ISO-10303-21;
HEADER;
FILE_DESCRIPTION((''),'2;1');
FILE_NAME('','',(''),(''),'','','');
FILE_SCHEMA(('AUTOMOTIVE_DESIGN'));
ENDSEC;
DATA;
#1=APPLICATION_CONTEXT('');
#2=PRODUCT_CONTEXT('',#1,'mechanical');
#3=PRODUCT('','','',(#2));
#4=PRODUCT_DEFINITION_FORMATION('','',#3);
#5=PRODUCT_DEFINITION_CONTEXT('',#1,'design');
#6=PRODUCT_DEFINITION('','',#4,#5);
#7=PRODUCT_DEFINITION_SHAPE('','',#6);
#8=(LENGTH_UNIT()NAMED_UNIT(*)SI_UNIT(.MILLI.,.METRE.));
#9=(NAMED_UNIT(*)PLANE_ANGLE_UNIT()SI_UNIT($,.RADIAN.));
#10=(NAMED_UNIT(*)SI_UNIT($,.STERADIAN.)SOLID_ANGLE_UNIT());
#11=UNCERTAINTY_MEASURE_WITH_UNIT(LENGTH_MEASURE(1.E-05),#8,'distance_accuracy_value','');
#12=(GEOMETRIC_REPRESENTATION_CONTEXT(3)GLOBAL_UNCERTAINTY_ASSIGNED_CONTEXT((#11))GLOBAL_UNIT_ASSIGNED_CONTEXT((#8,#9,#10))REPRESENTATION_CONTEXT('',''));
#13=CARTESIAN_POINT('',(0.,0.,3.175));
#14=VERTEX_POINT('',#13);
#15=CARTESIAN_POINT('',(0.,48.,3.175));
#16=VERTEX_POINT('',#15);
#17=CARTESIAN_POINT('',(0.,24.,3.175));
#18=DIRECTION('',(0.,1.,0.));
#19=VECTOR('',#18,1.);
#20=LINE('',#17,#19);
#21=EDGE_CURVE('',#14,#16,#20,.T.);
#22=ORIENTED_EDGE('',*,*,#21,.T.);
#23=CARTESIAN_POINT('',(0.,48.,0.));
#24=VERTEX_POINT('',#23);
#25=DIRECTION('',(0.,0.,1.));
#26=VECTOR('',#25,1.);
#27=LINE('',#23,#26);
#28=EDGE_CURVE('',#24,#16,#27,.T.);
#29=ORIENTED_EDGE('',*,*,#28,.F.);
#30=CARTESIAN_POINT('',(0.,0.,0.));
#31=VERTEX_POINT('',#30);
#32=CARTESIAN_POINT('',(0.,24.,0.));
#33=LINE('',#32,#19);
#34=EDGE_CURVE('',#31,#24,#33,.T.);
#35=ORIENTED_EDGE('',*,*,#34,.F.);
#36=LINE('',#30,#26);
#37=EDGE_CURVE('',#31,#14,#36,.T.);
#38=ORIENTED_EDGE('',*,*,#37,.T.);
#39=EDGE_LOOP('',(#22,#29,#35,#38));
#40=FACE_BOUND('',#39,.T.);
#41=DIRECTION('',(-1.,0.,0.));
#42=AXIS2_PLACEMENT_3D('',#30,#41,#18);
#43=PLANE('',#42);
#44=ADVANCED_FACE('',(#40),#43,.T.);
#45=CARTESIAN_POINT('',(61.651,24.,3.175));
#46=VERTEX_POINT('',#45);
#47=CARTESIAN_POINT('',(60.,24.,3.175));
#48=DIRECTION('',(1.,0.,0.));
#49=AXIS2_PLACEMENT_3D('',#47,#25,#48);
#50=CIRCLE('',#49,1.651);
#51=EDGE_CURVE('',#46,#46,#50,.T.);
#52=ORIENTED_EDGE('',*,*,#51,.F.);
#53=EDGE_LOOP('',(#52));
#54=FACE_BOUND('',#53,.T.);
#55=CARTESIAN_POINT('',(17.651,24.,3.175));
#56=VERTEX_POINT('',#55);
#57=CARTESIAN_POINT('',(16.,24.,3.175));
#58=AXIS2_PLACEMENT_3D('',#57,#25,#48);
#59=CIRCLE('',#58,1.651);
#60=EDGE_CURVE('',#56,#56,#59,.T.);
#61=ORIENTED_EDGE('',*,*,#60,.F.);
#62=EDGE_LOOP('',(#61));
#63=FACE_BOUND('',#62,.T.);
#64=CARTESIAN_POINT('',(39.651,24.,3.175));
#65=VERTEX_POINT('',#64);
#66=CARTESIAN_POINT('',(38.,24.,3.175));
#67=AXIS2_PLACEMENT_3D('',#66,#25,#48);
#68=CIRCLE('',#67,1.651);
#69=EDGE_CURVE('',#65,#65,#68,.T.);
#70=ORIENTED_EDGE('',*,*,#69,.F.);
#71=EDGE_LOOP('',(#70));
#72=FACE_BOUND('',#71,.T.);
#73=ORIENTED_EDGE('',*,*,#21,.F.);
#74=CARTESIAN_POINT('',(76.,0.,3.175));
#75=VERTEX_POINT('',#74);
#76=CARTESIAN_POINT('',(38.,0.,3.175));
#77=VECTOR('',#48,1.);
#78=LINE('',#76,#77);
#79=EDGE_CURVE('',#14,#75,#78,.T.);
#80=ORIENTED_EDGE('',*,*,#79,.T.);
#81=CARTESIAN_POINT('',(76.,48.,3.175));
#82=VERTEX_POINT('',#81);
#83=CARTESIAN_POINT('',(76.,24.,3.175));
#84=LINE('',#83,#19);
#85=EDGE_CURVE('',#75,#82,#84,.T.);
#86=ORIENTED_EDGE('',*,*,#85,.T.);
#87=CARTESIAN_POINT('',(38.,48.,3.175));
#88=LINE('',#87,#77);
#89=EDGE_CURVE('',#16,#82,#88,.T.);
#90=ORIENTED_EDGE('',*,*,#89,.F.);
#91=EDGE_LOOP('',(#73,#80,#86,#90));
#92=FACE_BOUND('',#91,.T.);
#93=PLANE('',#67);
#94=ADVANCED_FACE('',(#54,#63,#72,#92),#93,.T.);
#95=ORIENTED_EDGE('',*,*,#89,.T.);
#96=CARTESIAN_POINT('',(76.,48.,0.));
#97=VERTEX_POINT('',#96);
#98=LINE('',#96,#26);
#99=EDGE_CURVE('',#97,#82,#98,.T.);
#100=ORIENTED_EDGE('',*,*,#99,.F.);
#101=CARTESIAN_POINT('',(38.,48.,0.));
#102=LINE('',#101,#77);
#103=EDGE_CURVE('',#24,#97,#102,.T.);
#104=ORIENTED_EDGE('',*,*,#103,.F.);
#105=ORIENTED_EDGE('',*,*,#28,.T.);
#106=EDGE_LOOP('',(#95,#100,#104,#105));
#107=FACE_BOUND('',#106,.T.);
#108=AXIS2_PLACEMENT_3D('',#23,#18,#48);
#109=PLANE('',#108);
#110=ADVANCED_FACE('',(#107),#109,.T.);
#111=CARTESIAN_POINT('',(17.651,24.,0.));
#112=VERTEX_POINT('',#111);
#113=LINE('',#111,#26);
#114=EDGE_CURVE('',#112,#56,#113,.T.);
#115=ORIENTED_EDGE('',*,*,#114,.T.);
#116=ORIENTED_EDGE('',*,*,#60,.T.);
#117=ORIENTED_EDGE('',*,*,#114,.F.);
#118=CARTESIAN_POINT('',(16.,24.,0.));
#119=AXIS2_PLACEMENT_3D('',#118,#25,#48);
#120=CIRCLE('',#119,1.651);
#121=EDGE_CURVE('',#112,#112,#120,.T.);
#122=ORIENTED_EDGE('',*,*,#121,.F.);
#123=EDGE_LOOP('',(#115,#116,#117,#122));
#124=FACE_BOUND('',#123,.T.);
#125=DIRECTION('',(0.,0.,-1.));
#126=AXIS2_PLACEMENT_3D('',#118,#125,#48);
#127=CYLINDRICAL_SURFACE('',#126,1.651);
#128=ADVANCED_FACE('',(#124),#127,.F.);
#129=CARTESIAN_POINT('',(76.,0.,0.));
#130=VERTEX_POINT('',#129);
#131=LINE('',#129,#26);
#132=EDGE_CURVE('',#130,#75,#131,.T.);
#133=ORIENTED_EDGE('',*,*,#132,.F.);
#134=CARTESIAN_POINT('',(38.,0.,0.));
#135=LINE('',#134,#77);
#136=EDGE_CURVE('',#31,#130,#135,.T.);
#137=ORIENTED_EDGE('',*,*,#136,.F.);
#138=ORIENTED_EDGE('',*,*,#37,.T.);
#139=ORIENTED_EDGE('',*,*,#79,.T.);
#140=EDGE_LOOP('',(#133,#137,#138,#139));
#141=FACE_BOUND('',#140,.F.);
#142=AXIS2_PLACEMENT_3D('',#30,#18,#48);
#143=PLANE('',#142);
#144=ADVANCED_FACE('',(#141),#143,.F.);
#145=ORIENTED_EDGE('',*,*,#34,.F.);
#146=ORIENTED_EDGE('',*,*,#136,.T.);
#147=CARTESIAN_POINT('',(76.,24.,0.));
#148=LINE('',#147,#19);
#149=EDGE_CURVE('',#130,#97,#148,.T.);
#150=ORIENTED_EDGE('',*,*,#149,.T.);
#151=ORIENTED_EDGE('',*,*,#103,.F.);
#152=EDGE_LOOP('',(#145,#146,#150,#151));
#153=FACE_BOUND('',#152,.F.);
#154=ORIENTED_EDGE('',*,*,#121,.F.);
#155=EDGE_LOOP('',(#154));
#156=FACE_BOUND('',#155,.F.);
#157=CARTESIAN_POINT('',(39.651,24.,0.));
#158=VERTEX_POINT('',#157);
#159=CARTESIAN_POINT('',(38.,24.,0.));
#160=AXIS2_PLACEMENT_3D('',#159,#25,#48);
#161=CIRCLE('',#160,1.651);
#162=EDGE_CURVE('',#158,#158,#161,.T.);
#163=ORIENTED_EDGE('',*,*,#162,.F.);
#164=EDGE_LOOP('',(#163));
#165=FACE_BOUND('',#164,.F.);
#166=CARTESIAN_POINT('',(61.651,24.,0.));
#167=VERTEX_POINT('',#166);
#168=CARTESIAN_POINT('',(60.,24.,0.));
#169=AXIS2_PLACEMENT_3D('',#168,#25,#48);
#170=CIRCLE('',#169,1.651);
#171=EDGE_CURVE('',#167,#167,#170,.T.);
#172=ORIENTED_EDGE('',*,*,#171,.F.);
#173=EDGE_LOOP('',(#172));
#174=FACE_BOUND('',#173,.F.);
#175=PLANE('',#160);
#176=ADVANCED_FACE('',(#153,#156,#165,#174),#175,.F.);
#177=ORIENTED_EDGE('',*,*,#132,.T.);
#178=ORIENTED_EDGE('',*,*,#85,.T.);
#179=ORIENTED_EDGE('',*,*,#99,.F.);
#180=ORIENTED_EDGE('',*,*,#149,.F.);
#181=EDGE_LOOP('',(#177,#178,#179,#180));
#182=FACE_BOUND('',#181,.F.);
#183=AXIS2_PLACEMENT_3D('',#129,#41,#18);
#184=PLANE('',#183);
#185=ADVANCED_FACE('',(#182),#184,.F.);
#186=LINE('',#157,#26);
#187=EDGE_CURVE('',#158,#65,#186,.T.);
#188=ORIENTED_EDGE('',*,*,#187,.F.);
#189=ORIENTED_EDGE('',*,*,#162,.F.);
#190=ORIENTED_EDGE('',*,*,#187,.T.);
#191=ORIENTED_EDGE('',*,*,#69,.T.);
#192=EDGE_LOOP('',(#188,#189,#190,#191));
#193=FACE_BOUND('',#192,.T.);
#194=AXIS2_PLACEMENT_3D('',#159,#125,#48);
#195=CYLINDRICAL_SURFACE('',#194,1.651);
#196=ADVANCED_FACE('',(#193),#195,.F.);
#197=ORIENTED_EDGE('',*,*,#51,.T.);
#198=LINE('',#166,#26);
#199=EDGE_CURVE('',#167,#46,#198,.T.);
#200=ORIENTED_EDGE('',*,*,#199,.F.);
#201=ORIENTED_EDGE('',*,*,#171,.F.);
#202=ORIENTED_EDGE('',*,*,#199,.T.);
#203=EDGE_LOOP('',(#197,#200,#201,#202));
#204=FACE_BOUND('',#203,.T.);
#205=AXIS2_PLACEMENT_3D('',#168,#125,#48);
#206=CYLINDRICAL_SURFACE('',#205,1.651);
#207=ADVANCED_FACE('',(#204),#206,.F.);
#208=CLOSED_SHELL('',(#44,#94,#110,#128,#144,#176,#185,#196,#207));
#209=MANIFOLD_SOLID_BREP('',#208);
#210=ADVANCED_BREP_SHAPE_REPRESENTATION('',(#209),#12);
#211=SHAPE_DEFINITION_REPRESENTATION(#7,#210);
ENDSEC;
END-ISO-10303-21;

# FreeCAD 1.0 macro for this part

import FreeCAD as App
import Part
import Sketcher


def add_polygon(sketch, points):
    """Adds a closed chain of lines whose ends are joined by coincident constraints."""
    first, n = sketch.GeometryCount, len(points)
    for a, b in zip(points, points[1:] + points[:1]):
        sketch.addGeometry(Part.LineSegment(App.Vector(*a, 0), App.Vector(*b, 0)), False)
    for i in range(n):
        sketch.addConstraint(Sketcher.Constraint("Coincident", first + i, 2, first + (i + 1) % n, 1))

doc = App.newDocument("Part")
params = doc.addObject("Spreadsheet::Sheet", "Params")
for row, (alias, value) in enumerate([
    ("sketch1_width", "76 mm"),
    ("sketch1_height", "48 mm"),
    ("pad1_length", "3.175 mm"),
], start=1):
    params.set(f"A{row}", alias)
    params.set(f"B{row}", "=" + value)
    params.setAlias(f"B{row}", alias)

body = doc.addObject("PartDesign::Body", "Body")

sketch1 = body.newObject("Sketcher::SketchObject", "Sketch")
sketch1.AttachmentSupport = (doc.getObject("XY_Plane"), [""])
sketch1.MapMode = "FlatFace"
add_polygon(sketch1, [(0, 48), (0, 0), (76, 0), (76, 48)])
sketch1.addGeometry(Part.Circle(App.Vector(16, 24, 0), App.Vector(0, 0, 1), 1.7), False)
sketch1.addGeometry(Part.Circle(App.Vector(38, 24, 0), App.Vector(0, 0, 1), 1.7), False)
sketch1.addGeometry(Part.Circle(App.Vector(60, 24, 0), App.Vector(0, 0, 1), 1.7), False)
sketch1.addConstraint(Sketcher.Constraint("Vertical", 0))
sketch1.addConstraint(Sketcher.Constraint("Horizontal", 1))
sketch1.addConstraint(Sketcher.Constraint("Vertical", 2))
sketch1.addConstraint(Sketcher.Constraint("Horizontal", 3))
sketch1.addConstraint(Sketcher.Constraint("Coincident", 0, 2, -1, 1))
sketch1.addConstraint(Sketcher.Constraint("Equal", 4, 5))
sketch1.addConstraint(Sketcher.Constraint("Equal", 5, 6))
sketch1.addConstraint(Sketcher.Constraint("Horizontal", 4, 3, 5, 3))
sketch1.addConstraint(Sketcher.Constraint("Horizontal", 5, 3, 6, 3))
sketch1.addConstraint(Sketcher.Constraint("DistanceX", 1, 1, 1, 2, 76.0))
sketch1.addConstraint(Sketcher.Constraint("DistanceY", 0, 2, 0, 1, 48.0))
sketch1.addConstraint(Sketcher.Constraint("Diameter", 4, 3.302))
sketch1.addConstraint(Sketcher.Constraint("DistanceX", -1, 1, 4, 3, 16.0))
sketch1.addConstraint(Sketcher.Constraint("DistanceY", -1, 1, 4, 3, 24.0))
sketch1.addConstraint(Sketcher.Constraint("DistanceX", -1, 1, 5, 3, 38.0))
sketch1.addConstraint(Sketcher.Constraint("DistanceX", -1, 1, 6, 3, 60.0))
sketch1.setExpression("Constraints[13]", "Params.sketch1_width")
sketch1.setExpression("Constraints[14]", "Params.sketch1_height")
pad1 = body.newObject("PartDesign::Pad", "Pad")
pad1.Profile = sketch1
pad1.setExpression("Length", "Params.pad1_length")

doc.recompute()
